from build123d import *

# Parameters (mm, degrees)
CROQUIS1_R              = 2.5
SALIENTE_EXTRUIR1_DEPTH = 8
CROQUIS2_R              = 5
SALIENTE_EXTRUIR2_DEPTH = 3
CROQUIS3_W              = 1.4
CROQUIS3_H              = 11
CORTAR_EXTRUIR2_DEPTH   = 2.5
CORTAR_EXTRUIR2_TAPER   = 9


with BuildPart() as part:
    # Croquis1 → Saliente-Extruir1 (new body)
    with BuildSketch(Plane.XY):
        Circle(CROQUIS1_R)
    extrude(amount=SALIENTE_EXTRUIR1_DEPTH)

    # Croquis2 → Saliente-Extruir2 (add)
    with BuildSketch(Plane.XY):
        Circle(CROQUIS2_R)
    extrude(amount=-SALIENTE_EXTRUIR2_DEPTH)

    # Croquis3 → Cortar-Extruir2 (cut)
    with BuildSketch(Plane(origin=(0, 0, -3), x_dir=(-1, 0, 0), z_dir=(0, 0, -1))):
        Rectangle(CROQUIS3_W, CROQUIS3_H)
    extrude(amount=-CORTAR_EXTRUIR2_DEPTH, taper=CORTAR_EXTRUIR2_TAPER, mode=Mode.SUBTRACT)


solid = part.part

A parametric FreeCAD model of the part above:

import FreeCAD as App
import Part
import Sketcher

doc = App.newDocument("Part")
params = doc.addObject("Spreadsheet::Sheet", "Params")
for row, (alias, value) in enumerate([
    ("sketch1_diameter", "5 mm"),
    ("pad1_length", "8 mm"),
    ("sketch2_diameter", "10 mm"),
    ("pad2_length", "3 mm"),
    ("sketch3_height", "11 mm"),
    ("sketch3_width", "1.4 mm"),
    ("pocket1_length", "2.5 mm"),
    ("pocket1_taper", "-9 deg"),
], start=1):
    params.set(f"A{row}", alias)
    params.set(f"B{row}", "=" + value)
    params.setAlias(f"B{row}", alias)

body = doc.addObject("PartDesign::Body", "Body")

sketch1 = doc.addObject("Sketcher::SketchObject", "Sketch")
body.addObject(sketch1)
sketch1.AttachmentSupport = (doc.XY_Plane, [""])
sketch1.MapMode = "FlatFace"
sketch1.addGeometry(Part.Circle(App.Vector(0, 0, 0), App.Vector(0, 0, 1), 2.5), False)
sketch1.addConstraint([
    Sketcher.Constraint("Coincident", 0, 3, -1, 1),
    Sketcher.Constraint("Diameter", 0, 5.0),
])
sketch1.setExpression("Constraints[1]", "Params.sketch1_diameter")
pad1 = doc.addObject("PartDesign::Pad", "Pad")
body.addObject(pad1)
pad1.Profile = sketch1
pad1.setExpression("Length", "Params.pad1_length")

sketch2 = doc.addObject("Sketcher::SketchObject", "Sketch001")
body.addObject(sketch2)
sketch2.AttachmentSupport = (doc.XY_Plane, [""])
sketch2.MapMode = "FlatFace"
sketch2.addGeometry(Part.Circle(App.Vector(0, 0, 0), App.Vector(0, 0, 1), 5), False)
sketch2.addConstraint([
    Sketcher.Constraint("Coincident", 0, 3, -1, 1),
    Sketcher.Constraint("Diameter", 0, 10.0),
])
sketch2.setExpression("Constraints[1]", "Params.sketch2_diameter")
pad2 = doc.addObject("PartDesign::Pad", "Pad001")
body.addObject(pad2)
pad2.Profile = sketch2
pad2.setExpression("Length", "Params.pad2_length")
pad2.Reversed = True

sketch3 = doc.addObject("Sketcher::SketchObject", "Sketch002")
body.addObject(sketch3)
sketch3.AttachmentSupport = (doc.XY_Plane, [""])
sketch3.MapMode = "FlatFace"
sketch3.AttachmentOffset = App.Placement(App.Vector(0, 0, -3), App.Rotation())
sketch3.addGeometry([
    Part.LineSegment(App.Vector(0.7, 5.5, 0), App.Vector(0.7, -5.5, 0)),
    Part.LineSegment(App.Vector(0.7, -5.5, 0), App.Vector(-0.7, -5.5, 0)),
    Part.LineSegment(App.Vector(-0.7, -5.5, 0), App.Vector(-0.7, 5.5, 0)),
    Part.LineSegment(App.Vector(-0.7, 5.5, 0), App.Vector(0.7, 5.5, 0)),
], False)
sketch3.addConstraint([
    Sketcher.Constraint("Coincident", 0, 2, 1, 1),
    Sketcher.Constraint("Coincident", 1, 2, 2, 1),
    Sketcher.Constraint("Coincident", 2, 2, 3, 1),
    Sketcher.Constraint("Coincident", 3, 2, 0, 1),
    Sketcher.Constraint("Vertical", 0),
    Sketcher.Constraint("Horizontal", 1),
    Sketcher.Constraint("Vertical", 2),
    Sketcher.Constraint("Horizontal", 3),
    Sketcher.Constraint("Symmetric", 0, 2, 2, 2, -1, 1),
    Sketcher.Constraint("DistanceY", 0, 2, 0, 1, 11.0),
    Sketcher.Constraint("DistanceX", 1, 2, 1, 1, 1.4),
])
sketch3.setExpression("Constraints[9]", "Params.sketch3_height")
sketch3.setExpression("Constraints[10]", "Params.sketch3_width")
pocket1 = doc.addObject("PartDesign::Pocket", "Pocket")
body.addObject(pocket1)
pocket1.Profile = sketch3
pocket1.setExpression("Length", "Params.pocket1_length")
pocket1.Reversed = True
pocket1.setExpression("TaperAngle", "Params.pocket1_taper")

doc.recompute()
